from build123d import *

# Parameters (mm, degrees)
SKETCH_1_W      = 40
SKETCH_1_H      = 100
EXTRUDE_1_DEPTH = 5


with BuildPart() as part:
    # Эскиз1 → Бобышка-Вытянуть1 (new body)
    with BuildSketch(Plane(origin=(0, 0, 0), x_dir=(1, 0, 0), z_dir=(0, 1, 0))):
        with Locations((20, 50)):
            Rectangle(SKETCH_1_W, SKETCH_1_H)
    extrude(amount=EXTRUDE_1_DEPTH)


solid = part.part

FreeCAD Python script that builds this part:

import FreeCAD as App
import Part
import Sketcher
Q = App.Units.Quantity

doc = App.newDocument("Part")
params = doc.addObject("Spreadsheet::Sheet", "Params")
for row, (alias, value) in enumerate([
    ("sketch1_width", "40 mm"),
    ("sketch1_height", "100 mm"),
    ("pad1_length", "5 mm"),
], start=1):
    params.set(f"A{row}", alias)
    params.set(f"B{row}", "=" + value)
    params.setAlias(f"B{row}", alias)

body = doc.addObject("PartDesign::Body", "Body")

# Sketch on XZ plane
sketch1 = body.newObject("Sketcher::SketchObject", "Sketch")
sketch1.AttachmentSupport = (doc.getObject("XZ_Plane"), [""])
sketch1.MapMode = "FlatFace"
sketch1.addGeometry([
    Part.LineSegment(App.Vector(0, -100, 0), App.Vector(0, 0, 0)),
    Part.LineSegment(App.Vector(0, 0, 0), App.Vector(40, 0, 0)),
    Part.LineSegment(App.Vector(40, 0, 0), App.Vector(40, -100, 0)),
    Part.LineSegment(App.Vector(40, -100, 0), App.Vector(0, -100, 0)),
], False)
sketch1.addConstraint([
    Sketcher.Constraint("Coincident", 0, 2, 1, 1),
    Sketcher.Constraint("Coincident", 1, 2, 2, 1),
    Sketcher.Constraint("Coincident", 2, 2, 3, 1),
    Sketcher.Constraint("Coincident", 3, 2, 0, 1),
    Sketcher.Constraint("Vertical", 0),
    Sketcher.Constraint("Horizontal", 1),
    Sketcher.Constraint("Vertical", 2),
    Sketcher.Constraint("Horizontal", 3),
    Sketcher.Constraint("Coincident", 0, 2, -1, 1),
    Sketcher.Constraint("DistanceX", 1, 1, 1, 2, Q("40 mm")),
    Sketcher.Constraint("DistanceY", 0, 1, 0, 2, Q("100 mm")),
])
sketch1.setExpression("Constraints[9]", "Params.sketch1_width")
sketch1.setExpression("Constraints[10]", "Params.sketch1_height")
pad1 = body.newObject("PartDesign::Pad", "Pad")
pad1.Profile = sketch1
pad1.setExpression("Length", "Params.pad1_length")
pad1.Reversed = True

doc.recompute()
